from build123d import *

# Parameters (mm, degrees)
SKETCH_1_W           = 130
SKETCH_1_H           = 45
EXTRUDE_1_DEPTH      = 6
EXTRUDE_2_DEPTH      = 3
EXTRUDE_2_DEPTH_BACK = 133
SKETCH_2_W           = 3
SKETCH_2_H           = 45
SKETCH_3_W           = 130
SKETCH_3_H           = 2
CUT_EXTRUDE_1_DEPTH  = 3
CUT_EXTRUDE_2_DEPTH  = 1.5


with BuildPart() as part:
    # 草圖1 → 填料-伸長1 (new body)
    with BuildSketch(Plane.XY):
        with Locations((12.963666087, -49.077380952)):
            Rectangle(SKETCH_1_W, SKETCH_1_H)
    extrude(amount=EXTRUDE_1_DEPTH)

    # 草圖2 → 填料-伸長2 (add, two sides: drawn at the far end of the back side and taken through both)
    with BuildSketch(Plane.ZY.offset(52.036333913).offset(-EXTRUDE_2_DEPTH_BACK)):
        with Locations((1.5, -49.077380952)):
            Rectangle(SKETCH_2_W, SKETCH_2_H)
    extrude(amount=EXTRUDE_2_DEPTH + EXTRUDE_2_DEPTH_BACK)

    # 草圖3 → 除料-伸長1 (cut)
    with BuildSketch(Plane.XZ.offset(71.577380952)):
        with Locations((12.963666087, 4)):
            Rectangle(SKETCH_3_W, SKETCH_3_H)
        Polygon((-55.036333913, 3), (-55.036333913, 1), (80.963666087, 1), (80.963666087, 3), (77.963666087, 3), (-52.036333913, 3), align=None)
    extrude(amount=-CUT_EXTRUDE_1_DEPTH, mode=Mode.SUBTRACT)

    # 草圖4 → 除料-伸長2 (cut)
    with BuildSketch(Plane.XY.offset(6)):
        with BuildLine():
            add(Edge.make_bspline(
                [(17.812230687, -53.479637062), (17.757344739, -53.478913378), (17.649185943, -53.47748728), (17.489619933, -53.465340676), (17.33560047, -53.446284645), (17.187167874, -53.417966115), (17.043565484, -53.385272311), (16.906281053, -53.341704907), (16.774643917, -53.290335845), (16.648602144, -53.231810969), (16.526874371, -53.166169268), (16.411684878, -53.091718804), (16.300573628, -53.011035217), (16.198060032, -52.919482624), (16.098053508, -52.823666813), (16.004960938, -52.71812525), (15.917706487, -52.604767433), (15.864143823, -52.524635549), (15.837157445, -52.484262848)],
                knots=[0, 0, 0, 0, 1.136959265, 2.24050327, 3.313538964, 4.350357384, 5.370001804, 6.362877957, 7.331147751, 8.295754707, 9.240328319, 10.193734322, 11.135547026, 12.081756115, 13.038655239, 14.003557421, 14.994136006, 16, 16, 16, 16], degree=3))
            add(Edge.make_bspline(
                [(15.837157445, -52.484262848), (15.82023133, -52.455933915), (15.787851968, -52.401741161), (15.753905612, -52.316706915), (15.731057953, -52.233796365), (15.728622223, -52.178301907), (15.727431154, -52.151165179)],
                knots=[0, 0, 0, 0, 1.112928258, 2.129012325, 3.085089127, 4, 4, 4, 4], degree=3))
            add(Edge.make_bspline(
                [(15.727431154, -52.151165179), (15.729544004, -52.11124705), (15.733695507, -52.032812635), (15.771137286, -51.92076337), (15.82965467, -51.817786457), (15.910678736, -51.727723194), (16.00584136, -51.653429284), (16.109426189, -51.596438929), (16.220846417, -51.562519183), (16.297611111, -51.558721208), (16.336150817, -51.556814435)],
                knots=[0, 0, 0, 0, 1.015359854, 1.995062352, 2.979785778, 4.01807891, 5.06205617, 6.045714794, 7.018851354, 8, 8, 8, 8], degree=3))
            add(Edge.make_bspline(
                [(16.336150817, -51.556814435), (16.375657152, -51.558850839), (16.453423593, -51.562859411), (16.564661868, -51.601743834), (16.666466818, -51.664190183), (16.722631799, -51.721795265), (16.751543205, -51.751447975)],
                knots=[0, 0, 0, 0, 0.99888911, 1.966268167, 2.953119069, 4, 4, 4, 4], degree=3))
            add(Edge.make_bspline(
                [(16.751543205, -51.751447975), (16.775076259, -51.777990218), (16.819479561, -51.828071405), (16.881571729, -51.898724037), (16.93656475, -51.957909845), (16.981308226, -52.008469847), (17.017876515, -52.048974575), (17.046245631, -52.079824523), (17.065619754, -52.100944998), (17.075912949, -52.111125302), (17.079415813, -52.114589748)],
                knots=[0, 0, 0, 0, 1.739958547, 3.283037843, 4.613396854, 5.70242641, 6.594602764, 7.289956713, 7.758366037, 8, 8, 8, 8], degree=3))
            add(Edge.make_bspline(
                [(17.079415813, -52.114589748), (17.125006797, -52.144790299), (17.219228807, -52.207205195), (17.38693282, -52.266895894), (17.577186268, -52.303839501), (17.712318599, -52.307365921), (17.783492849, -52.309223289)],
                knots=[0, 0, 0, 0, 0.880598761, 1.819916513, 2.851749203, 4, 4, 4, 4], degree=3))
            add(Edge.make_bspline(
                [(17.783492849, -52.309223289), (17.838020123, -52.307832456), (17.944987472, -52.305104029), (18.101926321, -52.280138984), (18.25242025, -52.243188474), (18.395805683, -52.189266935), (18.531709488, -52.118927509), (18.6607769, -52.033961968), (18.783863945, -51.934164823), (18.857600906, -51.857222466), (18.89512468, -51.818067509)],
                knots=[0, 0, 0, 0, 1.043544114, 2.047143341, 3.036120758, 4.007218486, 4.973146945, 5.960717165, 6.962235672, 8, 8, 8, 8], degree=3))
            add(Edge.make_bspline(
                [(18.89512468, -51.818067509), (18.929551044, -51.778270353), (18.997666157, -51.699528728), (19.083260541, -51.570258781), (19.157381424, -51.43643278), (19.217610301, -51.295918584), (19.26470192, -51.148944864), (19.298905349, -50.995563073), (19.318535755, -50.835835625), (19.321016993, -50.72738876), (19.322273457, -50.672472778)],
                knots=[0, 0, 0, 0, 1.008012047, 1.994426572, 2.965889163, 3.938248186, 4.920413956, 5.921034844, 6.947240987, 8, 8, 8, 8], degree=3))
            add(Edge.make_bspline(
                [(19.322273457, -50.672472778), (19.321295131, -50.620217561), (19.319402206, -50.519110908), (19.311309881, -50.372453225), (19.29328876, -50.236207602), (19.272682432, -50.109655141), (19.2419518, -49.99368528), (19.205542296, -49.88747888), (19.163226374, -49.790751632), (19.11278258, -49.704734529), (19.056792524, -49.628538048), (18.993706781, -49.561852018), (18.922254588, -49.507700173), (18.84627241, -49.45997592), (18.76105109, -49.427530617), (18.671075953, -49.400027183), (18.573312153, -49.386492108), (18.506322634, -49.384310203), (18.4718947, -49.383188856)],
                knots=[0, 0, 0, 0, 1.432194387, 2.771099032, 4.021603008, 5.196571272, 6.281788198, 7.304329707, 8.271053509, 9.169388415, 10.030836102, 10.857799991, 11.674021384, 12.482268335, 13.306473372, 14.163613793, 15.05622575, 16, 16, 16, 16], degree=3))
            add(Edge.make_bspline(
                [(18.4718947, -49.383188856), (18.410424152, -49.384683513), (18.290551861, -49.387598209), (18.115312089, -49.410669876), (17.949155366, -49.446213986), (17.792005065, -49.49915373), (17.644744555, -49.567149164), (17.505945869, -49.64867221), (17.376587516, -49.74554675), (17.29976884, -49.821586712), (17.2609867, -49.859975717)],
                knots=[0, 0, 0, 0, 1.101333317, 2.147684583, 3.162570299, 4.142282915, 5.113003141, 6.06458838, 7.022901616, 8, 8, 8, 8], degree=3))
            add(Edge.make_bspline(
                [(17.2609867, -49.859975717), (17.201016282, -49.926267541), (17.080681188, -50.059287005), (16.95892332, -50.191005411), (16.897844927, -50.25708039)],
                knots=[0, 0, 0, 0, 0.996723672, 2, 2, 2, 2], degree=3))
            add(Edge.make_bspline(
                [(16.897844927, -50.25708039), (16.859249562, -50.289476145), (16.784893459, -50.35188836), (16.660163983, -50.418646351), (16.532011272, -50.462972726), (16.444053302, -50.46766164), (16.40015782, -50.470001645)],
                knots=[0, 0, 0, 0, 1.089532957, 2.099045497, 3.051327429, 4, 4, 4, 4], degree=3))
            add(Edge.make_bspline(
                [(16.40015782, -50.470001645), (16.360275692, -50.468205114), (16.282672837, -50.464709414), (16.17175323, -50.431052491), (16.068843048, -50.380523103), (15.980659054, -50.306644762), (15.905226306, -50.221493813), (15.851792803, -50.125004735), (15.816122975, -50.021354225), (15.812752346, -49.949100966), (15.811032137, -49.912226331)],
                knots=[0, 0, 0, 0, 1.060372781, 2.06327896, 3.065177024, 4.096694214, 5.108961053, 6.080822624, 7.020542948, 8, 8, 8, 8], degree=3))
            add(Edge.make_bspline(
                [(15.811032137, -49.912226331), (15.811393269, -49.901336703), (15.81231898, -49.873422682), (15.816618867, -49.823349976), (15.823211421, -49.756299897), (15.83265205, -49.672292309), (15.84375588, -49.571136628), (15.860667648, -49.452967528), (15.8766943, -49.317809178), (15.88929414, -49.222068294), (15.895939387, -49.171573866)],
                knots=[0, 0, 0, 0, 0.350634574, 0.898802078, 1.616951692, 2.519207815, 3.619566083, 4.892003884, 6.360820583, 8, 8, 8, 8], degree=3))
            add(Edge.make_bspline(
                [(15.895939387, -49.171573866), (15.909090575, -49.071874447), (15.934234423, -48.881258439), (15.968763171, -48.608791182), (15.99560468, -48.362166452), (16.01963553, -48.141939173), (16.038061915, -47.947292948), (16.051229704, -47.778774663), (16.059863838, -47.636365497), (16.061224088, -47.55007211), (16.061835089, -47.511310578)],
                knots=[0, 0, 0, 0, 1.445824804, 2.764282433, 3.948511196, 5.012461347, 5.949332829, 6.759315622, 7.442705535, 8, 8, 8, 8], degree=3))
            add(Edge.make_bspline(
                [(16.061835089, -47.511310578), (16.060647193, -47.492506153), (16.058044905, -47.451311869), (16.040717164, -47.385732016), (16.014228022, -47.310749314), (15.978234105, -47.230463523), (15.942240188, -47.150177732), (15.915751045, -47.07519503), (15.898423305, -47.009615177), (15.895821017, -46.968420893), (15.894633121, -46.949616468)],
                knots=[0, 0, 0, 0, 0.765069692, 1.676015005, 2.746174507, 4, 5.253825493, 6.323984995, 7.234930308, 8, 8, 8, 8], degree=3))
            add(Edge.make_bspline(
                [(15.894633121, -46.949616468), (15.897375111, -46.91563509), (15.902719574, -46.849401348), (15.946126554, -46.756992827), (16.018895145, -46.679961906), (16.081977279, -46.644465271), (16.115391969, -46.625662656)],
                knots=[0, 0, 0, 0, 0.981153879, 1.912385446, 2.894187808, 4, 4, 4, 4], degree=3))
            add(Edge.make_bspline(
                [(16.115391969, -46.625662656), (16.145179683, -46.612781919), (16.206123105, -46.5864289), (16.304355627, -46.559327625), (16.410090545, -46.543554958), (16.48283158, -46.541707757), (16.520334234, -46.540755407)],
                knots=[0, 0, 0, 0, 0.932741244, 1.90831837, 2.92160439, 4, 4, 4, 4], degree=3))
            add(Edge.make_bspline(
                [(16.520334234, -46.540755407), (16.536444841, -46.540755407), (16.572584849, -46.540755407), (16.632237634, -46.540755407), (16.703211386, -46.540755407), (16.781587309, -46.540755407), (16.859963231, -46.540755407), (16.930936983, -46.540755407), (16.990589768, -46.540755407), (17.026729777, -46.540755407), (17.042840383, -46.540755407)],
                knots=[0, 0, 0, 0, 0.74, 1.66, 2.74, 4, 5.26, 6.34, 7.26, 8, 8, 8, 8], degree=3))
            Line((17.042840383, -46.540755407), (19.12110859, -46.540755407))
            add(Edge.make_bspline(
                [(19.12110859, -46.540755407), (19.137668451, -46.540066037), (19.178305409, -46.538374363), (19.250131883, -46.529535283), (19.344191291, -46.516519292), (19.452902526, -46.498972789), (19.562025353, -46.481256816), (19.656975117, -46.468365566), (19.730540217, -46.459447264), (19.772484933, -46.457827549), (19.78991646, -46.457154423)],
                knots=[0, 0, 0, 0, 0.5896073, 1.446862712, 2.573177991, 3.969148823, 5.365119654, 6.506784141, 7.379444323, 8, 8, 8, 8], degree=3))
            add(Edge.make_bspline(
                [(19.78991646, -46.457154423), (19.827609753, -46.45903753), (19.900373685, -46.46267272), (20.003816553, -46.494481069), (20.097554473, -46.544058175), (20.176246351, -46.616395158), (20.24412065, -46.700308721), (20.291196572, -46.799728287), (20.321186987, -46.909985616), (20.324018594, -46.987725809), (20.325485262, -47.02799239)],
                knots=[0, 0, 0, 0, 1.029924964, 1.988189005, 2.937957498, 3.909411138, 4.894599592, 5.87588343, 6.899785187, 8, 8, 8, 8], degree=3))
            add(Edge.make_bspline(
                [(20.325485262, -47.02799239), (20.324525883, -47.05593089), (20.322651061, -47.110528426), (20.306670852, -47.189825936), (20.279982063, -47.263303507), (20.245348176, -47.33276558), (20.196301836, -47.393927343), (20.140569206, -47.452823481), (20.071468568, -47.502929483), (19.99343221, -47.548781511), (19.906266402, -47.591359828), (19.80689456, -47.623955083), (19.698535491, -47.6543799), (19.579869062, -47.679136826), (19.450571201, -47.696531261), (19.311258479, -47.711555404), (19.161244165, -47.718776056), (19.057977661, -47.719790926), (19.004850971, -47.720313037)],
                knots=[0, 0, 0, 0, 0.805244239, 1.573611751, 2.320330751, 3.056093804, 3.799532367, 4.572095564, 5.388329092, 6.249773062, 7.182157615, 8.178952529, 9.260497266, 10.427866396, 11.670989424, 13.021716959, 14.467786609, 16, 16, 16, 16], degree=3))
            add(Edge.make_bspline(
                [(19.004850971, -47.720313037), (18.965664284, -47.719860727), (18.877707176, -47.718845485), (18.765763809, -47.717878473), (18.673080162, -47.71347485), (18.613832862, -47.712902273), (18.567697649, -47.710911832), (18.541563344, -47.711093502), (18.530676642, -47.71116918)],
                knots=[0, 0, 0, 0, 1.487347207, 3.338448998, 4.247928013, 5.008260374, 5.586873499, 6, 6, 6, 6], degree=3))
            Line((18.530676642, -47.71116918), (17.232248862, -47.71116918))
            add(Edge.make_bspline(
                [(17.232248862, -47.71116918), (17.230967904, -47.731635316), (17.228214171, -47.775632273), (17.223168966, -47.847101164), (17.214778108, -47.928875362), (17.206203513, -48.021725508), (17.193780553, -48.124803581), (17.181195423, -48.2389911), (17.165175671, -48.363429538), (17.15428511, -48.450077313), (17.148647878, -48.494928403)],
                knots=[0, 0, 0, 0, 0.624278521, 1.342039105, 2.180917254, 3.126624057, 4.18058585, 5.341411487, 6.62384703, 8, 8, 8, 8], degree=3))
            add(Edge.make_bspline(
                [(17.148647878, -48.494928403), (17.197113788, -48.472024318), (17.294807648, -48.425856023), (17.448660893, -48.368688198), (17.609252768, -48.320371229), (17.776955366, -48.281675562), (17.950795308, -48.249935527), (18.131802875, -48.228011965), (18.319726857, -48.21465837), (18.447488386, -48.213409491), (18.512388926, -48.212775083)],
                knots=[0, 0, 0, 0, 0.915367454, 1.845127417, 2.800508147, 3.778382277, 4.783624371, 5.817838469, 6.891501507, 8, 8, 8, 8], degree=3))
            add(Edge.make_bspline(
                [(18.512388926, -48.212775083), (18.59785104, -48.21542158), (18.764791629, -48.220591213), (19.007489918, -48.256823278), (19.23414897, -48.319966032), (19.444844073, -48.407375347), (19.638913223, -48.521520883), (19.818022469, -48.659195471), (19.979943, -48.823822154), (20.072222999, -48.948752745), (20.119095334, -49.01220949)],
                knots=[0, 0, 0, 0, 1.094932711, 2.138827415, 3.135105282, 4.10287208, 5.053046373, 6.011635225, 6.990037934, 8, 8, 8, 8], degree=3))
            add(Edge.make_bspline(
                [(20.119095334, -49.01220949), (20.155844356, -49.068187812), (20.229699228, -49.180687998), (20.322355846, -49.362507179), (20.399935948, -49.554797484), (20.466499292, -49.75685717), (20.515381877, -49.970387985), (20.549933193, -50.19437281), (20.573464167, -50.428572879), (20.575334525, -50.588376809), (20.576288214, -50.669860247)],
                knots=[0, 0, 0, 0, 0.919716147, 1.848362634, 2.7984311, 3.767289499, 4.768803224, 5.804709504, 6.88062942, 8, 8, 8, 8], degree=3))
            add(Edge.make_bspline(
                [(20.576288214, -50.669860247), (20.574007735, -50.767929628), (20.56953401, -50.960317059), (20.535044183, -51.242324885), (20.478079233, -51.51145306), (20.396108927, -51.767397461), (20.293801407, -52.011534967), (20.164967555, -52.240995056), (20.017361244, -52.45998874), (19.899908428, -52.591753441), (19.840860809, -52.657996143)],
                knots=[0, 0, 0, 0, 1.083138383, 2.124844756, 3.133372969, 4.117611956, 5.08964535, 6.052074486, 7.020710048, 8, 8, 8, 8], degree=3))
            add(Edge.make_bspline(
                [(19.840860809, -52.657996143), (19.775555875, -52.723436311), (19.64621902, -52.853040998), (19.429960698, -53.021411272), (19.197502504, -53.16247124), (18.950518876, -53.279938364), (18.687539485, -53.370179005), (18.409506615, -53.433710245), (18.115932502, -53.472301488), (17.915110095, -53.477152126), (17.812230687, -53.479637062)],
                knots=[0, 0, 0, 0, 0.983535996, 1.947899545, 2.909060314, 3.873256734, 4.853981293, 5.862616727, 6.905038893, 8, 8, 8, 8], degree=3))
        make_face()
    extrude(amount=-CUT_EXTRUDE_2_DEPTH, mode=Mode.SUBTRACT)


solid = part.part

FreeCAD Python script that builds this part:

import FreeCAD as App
import Part
import Sketcher

V = App.Vector


def add_polygon(sketch, points):
    """Adds a closed chain of lines whose ends are joined by coincident constraints."""
    first, n = sketch.GeometryCount, len(points)
    for a, b in zip(points, points[1:] + points[:1]):
        sketch.addGeometry(Part.LineSegment(App.Vector(*a, 0), App.Vector(*b, 0)), False)
    for i in range(n):
        sketch.addConstraint(Sketcher.Constraint("Coincident", first + i, 2, first + (i + 1) % n, 1))

doc = App.newDocument("Part")
body = doc.addObject("PartDesign::Body", "Body")

sketch1 = doc.addObject("Sketcher::SketchObject", "Sketch")
body.addObject(sketch1)
sketch1.AttachmentSupport = (doc.XY_Plane, [""])
sketch1.MapMode = "FlatFace"
add_polygon(sketch1, [(-52.036334, -26.577381), (-52.036334, -71.577381), (77.963666, -71.577381), (77.963666, -26.577381)])
sketch1.addConstraint([
    Sketcher.Constraint("Vertical", 0),
    Sketcher.Constraint("Horizontal", 1),
    Sketcher.Constraint("Vertical", 2),
    Sketcher.Constraint("Horizontal", 3),
    Sketcher.Constraint("DistanceX", 1, 1, 1, 2, 130.0),
    Sketcher.Constraint("DistanceY", 0, 2, 0, 1, 45.0),
    Sketcher.Constraint("DistanceY", 0, 2, -1, 1, 71.577381),
    Sketcher.Constraint("DistanceX", 0, 2, -1, 1, 52.036334),
])
pad1 = doc.addObject("PartDesign::Pad", "Pad")
body.addObject(pad1)
pad1.Profile = sketch1
pad1.Length = 6

sketch2 = doc.addObject("Sketcher::SketchObject", "Sketch001")
body.addObject(sketch2)
sketch2.AttachmentSupport = (doc.YZ_Plane, [""])
sketch2.MapMode = "FlatFace"
sketch2.AttachmentOffset = App.Placement(V(0, 0, -52.036334), App.Rotation())
add_polygon(sketch2, [(-26.577381, 0), (-71.577381, 0), (-71.577381, 3), (-26.577381, 3)])
sketch2.addConstraint([
    Sketcher.Constraint("Horizontal", 0),
    Sketcher.Constraint("Vertical", 1),
    Sketcher.Constraint("Horizontal", 2),
    Sketcher.Constraint("Vertical", 3),
    Sketcher.Constraint("PointOnObject", 0, 2, -1),
    Sketcher.Constraint("DistanceX", 0, 2, 0, 1, 45.0),
    Sketcher.Constraint("DistanceY", 1, 1, 1, 2, 3.0),
    Sketcher.Constraint("DistanceX", 0, 2, -1, 1, 71.577381),
])
pad2 = doc.addObject("PartDesign::Pad", "Pad001")
body.addObject(pad2)
pad2.Profile = sketch2
pad2.Type = "TwoLengths"
pad2.Length = 3
pad2.Length2 = 133
pad2.Reversed = True

sketch3 = doc.addObject("Sketcher::SketchObject", "Sketch002")
body.addObject(sketch3)
sketch3.AttachmentSupport = (doc.XZ_Plane, [""])
sketch3.MapMode = "FlatFace"
sketch3.AttachmentOffset = App.Placement(V(0, 0, 71.577381), App.Rotation())
add_polygon(sketch3, [(-52.036334, 5), (-52.036334, 3), (-55.036334, 3), (-55.036334, 1), (80.963666, 1), (80.963666, 3), (77.963666, 3), (77.963666, 5)])
sketch3.addConstraint([
    Sketcher.Constraint("Vertical", 0),
    Sketcher.Constraint("Horizontal", 1),
    Sketcher.Constraint("Vertical", 2),
    Sketcher.Constraint("Horizontal", 3),
    Sketcher.Constraint("Vertical", 4),
    Sketcher.Constraint("Horizontal", 5),
    Sketcher.Constraint("Vertical", 6),
    Sketcher.Constraint("Horizontal", 7),
    Sketcher.Constraint("Horizontal", 1, 2, 4, 2),
    Sketcher.Constraint("Equal", 1, 5),
    Sketcher.Constraint("Equal", 0, 2),
    Sketcher.Constraint("DistanceX", 1, 2, 1, 1, 3.0),
    Sketcher.Constraint("DistanceX", 3, 1, 3, 2, 136.0),
    Sketcher.Constraint("DistanceY", 0, 2, 0, 1, 2.0),
    Sketcher.Constraint("DistanceY", -1, 1, 0, 2, 3.0),
    Sketcher.Constraint("DistanceX", 0, 2, -1, 1, 52.036334),
])
pocket1 = doc.addObject("PartDesign::Pocket", "Pocket")
body.addObject(pocket1)
pocket1.Profile = sketch3
pocket1.Length = 3

sketch4 = doc.addObject("Sketcher::SketchObject", "Sketch003")
body.addObject(sketch4)
sketch4.AttachmentSupport = (doc.XY_Plane, [""])
sketch4.MapMode = "FlatFace"
sketch4.AttachmentOffset = App.Placement(V(0, 0, 6), App.Rotation())
sketch4.addGeometry([
    Part.BSplineCurve([V(17.812231, -53.479637, 0), V(17.757345, -53.478913, 0), V(17.649186, -53.477487, 0), V(17.48962, -53.465341, 0), V(17.3356, -53.446285, 0), V(17.187168, -53.417966, 0), V(17.043565, -53.385272, 0), V(16.906281, -53.341705, 0), V(16.774644, -53.290336, 0), V(16.648602, -53.231811, 0), V(16.526874, -53.166169, 0), V(16.411685, -53.091719, 0), V(16.300574, -53.011035, 0), V(16.19806, -52.919483, 0), V(16.098054, -52.823667, 0), V(16.004961, -52.718125, 0), V(15.917706, -52.604767, 0), V(15.864144, -52.524636, 0), V(15.837157, -52.484263, 0)], [4, 1, 1, 1, 1, 1, 1, 1, 1, 1, 1, 1, 1, 1, 1, 1, 4], [0, 1.136959265, 2.24050327, 3.313538964, 4.350357384, 5.370001804, 6.362877957, 7.331147751, 8.295754707, 9.240328319, 10.193734322, 11.135547026, 12.081756115, 13.038655239, 14.003557421, 14.994136006, 16], False, 3, [1, 1, 1, 1, 1, 1, 1, 1, 1, 1, 1, 1, 1, 1, 1, 1, 1, 1, 1], False),
    Part.BSplineCurve([V(19.840861, -52.657996, 0), V(19.775556, -52.723436, 0), V(19.646219, -52.853041, 0), V(19.429961, -53.021411, 0), V(19.197503, -53.162471, 0), V(18.950519, -53.279938, 0), V(18.687539, -53.370179, 0), V(18.409507, -53.43371, 0), V(18.115933, -53.472301, 0), V(17.91511, -53.477152, 0), V(17.812231, -53.479637, 0)], [4, 1, 1, 1, 1, 1, 1, 1, 4], [0, 0.983535996, 1.947899545, 2.909060314, 3.873256734, 4.853981293, 5.862616727, 6.905038893, 8], False, 3, [1, 1, 1, 1, 1, 1, 1, 1, 1, 1, 1], False),
    Part.BSplineCurve([V(20.576288, -50.66986, 0), V(20.574008, -50.76793, 0), V(20.569534, -50.960317, 0), V(20.535044, -51.242325, 0), V(20.478079, -51.511453, 0), V(20.396109, -51.767397, 0), V(20.293801, -52.011535, 0), V(20.164968, -52.240995, 0), V(20.017361, -52.459989, 0), V(19.899908, -52.591753, 0), V(19.840861, -52.657996, 0)], [4, 1, 1, 1, 1, 1, 1, 1, 4], [0, 1.083138383, 2.124844756, 3.133372969, 4.117611956, 5.08964535, 6.052074486, 7.020710048, 8], False, 3, [1, 1, 1, 1, 1, 1, 1, 1, 1, 1, 1], False),
    Part.BSplineCurve([V(20.119095, -49.012209, 0), V(20.155844, -49.068188, 0), V(20.229699, -49.180688, 0), V(20.322356, -49.362507, 0), V(20.399936, -49.554797, 0), V(20.466499, -49.756857, 0), V(20.515382, -49.970388, 0), V(20.549933, -50.194373, 0), V(20.573464, -50.428573, 0), V(20.575335, -50.588377, 0), V(20.576288, -50.66986, 0)], [4, 1, 1, 1, 1, 1, 1, 1, 4], [0, 0.919716147, 1.848362634, 2.7984311, 3.767289499, 4.768803224, 5.804709504, 6.88062942, 8], False, 3, [1, 1, 1, 1, 1, 1, 1, 1, 1, 1, 1], False),
    Part.BSplineCurve([V(18.512389, -48.212775, 0), V(18.597851, -48.215422, 0), V(18.764792, -48.220591, 0), V(19.00749, -48.256823, 0), V(19.234149, -48.319966, 0), V(19.444844, -48.407375, 0), V(19.638913, -48.521521, 0), V(19.818022, -48.659195, 0), V(19.979943, -48.823822, 0), V(20.072223, -48.948753, 0), V(20.119095, -49.012209, 0)], [4, 1, 1, 1, 1, 1, 1, 1, 4], [0, 1.094932711, 2.138827415, 3.135105282, 4.10287208, 5.053046373, 6.011635225, 6.990037934, 8], False, 3, [1, 1, 1, 1, 1, 1, 1, 1, 1, 1, 1], False),
    Part.BSplineCurve([V(17.148648, -48.494928, 0), V(17.197114, -48.472024, 0), V(17.294808, -48.425856, 0), V(17.448661, -48.368688, 0), V(17.609253, -48.320371, 0), V(17.776955, -48.281676, 0), V(17.950795, -48.249936, 0), V(18.131803, -48.228012, 0), V(18.319727, -48.214658, 0), V(18.447488, -48.213409, 0), V(18.512389, -48.212775, 0)], [4, 1, 1, 1, 1, 1, 1, 1, 4], [0, 0.915367454, 1.845127417, 2.800508147, 3.778382277, 4.783624371, 5.817838469, 6.891501507, 8], False, 3, [1, 1, 1, 1, 1, 1, 1, 1, 1, 1, 1], False),
    Part.BSplineCurve([V(17.232249, -47.711169, 0), V(17.230968, -47.731635, 0), V(17.228214, -47.775632, 0), V(17.223169, -47.847101, 0), V(17.214778, -47.928875, 0), V(17.206204, -48.021726, 0), V(17.193781, -48.124804, 0), V(17.181195, -48.238991, 0), V(17.165176, -48.36343, 0), V(17.154285, -48.450077, 0), V(17.148648, -48.494928, 0)], [4, 1, 1, 1, 1, 1, 1, 1, 4], [0, 0.624278521, 1.342039105, 2.180917254, 3.126624057, 4.18058585, 5.341411487, 6.62384703, 8], False, 3, [1, 1, 1, 1, 1, 1, 1, 1, 1, 1, 1], False),
    Part.LineSegment(V(17.232249, -47.711169, 0), V(18.530677, -47.711169, 0)),
    Part.BSplineCurve([V(19.004851, -47.720313, 0), V(18.965664, -47.719861, 0), V(18.877707, -47.718845, 0), V(18.765764, -47.717878, 0), V(18.67308, -47.713475, 0), V(18.613833, -47.712902, 0), V(18.567698, -47.710912, 0), V(18.541563, -47.711094, 0), V(18.530677, -47.711169, 0)], [4, 1, 1, 1, 1, 1, 4], [0, 1.487347207, 3.338448998, 4.247928013, 5.008260374, 5.586873499, 6], False, 3, [1, 1, 1, 1, 1, 1, 1, 1, 1], False),
    Part.BSplineCurve([V(20.325485, -47.027992, 0), V(20.324526, -47.055931, 0), V(20.322651, -47.110528, 0), V(20.306671, -47.189826, 0), V(20.279982, -47.263304, 0), V(20.245348, -47.332766, 0), V(20.196302, -47.393927, 0), V(20.140569, -47.452823, 0), V(20.071469, -47.502929, 0), V(19.993432, -47.548782, 0), V(19.906266, -47.59136, 0), V(19.806895, -47.623955, 0), V(19.698535, -47.65438, 0), V(19.579869, -47.679137, 0), V(19.450571, -47.696531, 0), V(19.311258, -47.711555, 0), V(19.161244, -47.718776, 0), V(19.057978, -47.719791, 0), V(19.004851, -47.720313, 0)], [4, 1, 1, 1, 1, 1, 1, 1, 1, 1, 1, 1, 1, 1, 1, 1, 4], [0, 0.805244239, 1.573611751, 2.320330751, 3.056093804, 3.799532367, 4.572095564, 5.388329092, 6.249773062, 7.182157615, 8.178952529, 9.260497266, 10.427866396, 11.670989424, 13.021716959, 14.467786609, 16], False, 3, [1, 1, 1, 1, 1, 1, 1, 1, 1, 1, 1, 1, 1, 1, 1, 1, 1, 1, 1], False),
    Part.BSplineCurve([V(19.789916, -46.457154, 0), V(19.82761, -46.459038, 0), V(19.900374, -46.462673, 0), V(20.003817, -46.494481, 0), V(20.097554, -46.544058, 0), V(20.176246, -46.616395, 0), V(20.244121, -46.700309, 0), V(20.291197, -46.799728, 0), V(20.321187, -46.909986, 0), V(20.324019, -46.987726, 0), V(20.325485, -47.027992, 0)], [4, 1, 1, 1, 1, 1, 1, 1, 4], [0, 1.029924964, 1.988189005, 2.937957498, 3.909411138, 4.894599592, 5.87588343, 6.899785187, 8], False, 3, [1, 1, 1, 1, 1, 1, 1, 1, 1, 1, 1], False),
    Part.BSplineCurve([V(19.121109, -46.540755, 0), V(19.137668, -46.540066, 0), V(19.178305, -46.538374, 0), V(19.250132, -46.529535, 0), V(19.344191, -46.516519, 0), V(19.452903, -46.498973, 0), V(19.562025, -46.481257, 0), V(19.656975, -46.468366, 0), V(19.73054, -46.459447, 0), V(19.772485, -46.457828, 0), V(19.789916, -46.457154, 0)], [4, 1, 1, 1, 1, 1, 1, 1, 4], [0, 0.5896073, 1.446862712, 2.573177991, 3.969148823, 5.365119654, 6.506784141, 7.379444323, 8], False, 3, [1, 1, 1, 1, 1, 1, 1, 1, 1, 1, 1], False),
    Part.LineSegment(V(19.121109, -46.540755, 0), V(17.04284, -46.540755, 0)),
    Part.BSplineCurve([V(16.520334, -46.540755, 0), V(16.536445, -46.540755, 0), V(16.572585, -46.540755, 0), V(16.632238, -46.540755, 0), V(16.703211, -46.540755, 0), V(16.781587, -46.540755, 0), V(16.859963, -46.540755, 0), V(16.930937, -46.540755, 0), V(16.99059, -46.540755, 0), V(17.02673, -46.540755, 0), V(17.04284, -46.540755, 0)], [4, 1, 1, 1, 1, 1, 1, 1, 4], [0, 0.74, 1.66, 2.74, 4, 5.26, 6.34, 7.26, 8], False, 3, [1, 1, 1, 1, 1, 1, 1, 1, 1, 1, 1], False),
    Part.BSplineCurve([V(16.115392, -46.625663, 0), V(16.14518, -46.612782, 0), V(16.206123, -46.586429, 0), V(16.304356, -46.559328, 0), V(16.410091, -46.543555, 0), V(16.482832, -46.541708, 0), V(16.520334, -46.540755, 0)], [4, 1, 1, 1, 4], [0, 0.932741244, 1.90831837, 2.92160439, 4], False, 3, [1, 1, 1, 1, 1, 1, 1], False),
    Part.BSplineCurve([V(15.894633, -46.949616, 0), V(15.897375, -46.915635, 0), V(15.90272, -46.849401, 0), V(15.946127, -46.756993, 0), V(16.018895, -46.679962, 0), V(16.081977, -46.644465, 0), V(16.115392, -46.625663, 0)], [4, 1, 1, 1, 4], [0, 0.981153879, 1.912385446, 2.894187808, 4], False, 3, [1, 1, 1, 1, 1, 1, 1], False),
    Part.BSplineCurve([V(16.061835, -47.511311, 0), V(16.060647, -47.492506, 0), V(16.058045, -47.451312, 0), V(16.040717, -47.385732, 0), V(16.014228, -47.310749, 0), V(15.978234, -47.230464, 0), V(15.94224, -47.150178, 0), V(15.915751, -47.075195, 0), V(15.898423, -47.009615, 0), V(15.895821, -46.968421, 0), V(15.894633, -46.949616, 0)], [4, 1, 1, 1, 1, 1, 1, 1, 4], [0, 0.765069692, 1.676015005, 2.746174507, 4, 5.253825493, 6.323984995, 7.234930308, 8], False, 3, [1, 1, 1, 1, 1, 1, 1, 1, 1, 1, 1], False),
    Part.BSplineCurve([V(15.895939, -49.171574, 0), V(15.909091, -49.071874, 0), V(15.934234, -48.881258, 0), V(15.968763, -48.608791, 0), V(15.995605, -48.362166, 0), V(16.019636, -48.141939, 0), V(16.038062, -47.947293, 0), V(16.05123, -47.778775, 0), V(16.059864, -47.636365, 0), V(16.061224, -47.550072, 0), V(16.061835, -47.511311, 0)], [4, 1, 1, 1, 1, 1, 1, 1, 4], [0, 1.445824804, 2.764282433, 3.948511196, 5.012461347, 5.949332829, 6.759315622, 7.442705535, 8], False, 3, [1, 1, 1, 1, 1, 1, 1, 1, 1, 1, 1], False),
    Part.BSplineCurve([V(15.811032, -49.912226, 0), V(15.811393, -49.901337, 0), V(15.812319, -49.873423, 0), V(15.816619, -49.82335, 0), V(15.823211, -49.7563, 0), V(15.832652, -49.672292, 0), V(15.843756, -49.571137, 0), V(15.860668, -49.452968, 0), V(15.876694, -49.317809, 0), V(15.889294, -49.222068, 0), V(15.895939, -49.171574, 0)], [4, 1, 1, 1, 1, 1, 1, 1, 4], [0, 0.350634574, 0.898802078, 1.616951692, 2.519207815, 3.619566083, 4.892003884, 6.360820583, 8], False, 3, [1, 1, 1, 1, 1, 1, 1, 1, 1, 1, 1], False),
    Part.BSplineCurve([V(16.400158, -50.470002, 0), V(16.360276, -50.468205, 0), V(16.282673, -50.464709, 0), V(16.171753, -50.431052, 0), V(16.068843, -50.380523, 0), V(15.980659, -50.306645, 0), V(15.905226, -50.221494, 0), V(15.851793, -50.125005, 0), V(15.816123, -50.021354, 0), V(15.812752, -49.949101, 0), V(15.811032, -49.912226, 0)], [4, 1, 1, 1, 1, 1, 1, 1, 4], [0, 1.060372781, 2.06327896, 3.065177024, 4.096694214, 5.108961053, 6.080822624, 7.020542948, 8], False, 3, [1, 1, 1, 1, 1, 1, 1, 1, 1, 1, 1], False),
    Part.BSplineCurve([V(16.897845, -50.25708, 0), V(16.85925, -50.289476, 0), V(16.784893, -50.351888, 0), V(16.660164, -50.418646, 0), V(16.532011, -50.462973, 0), V(16.444053, -50.467662, 0), V(16.400158, -50.470002, 0)], [4, 1, 1, 1, 4], [0, 1.089532957, 2.099045497, 3.051327429, 4], False, 3, [1, 1, 1, 1, 1, 1, 1], False),
    Part.BSplineCurve([V(17.260987, -49.859976, 0), V(17.201016, -49.926268, 0), V(17.080681, -50.059287, 0), V(16.958923, -50.191005, 0), V(16.897845, -50.25708, 0)], [4, 1, 4], [0, 0.996723672, 2], False, 3, [1, 1, 1, 1, 1], False),
    Part.BSplineCurve([V(18.471895, -49.383189, 0), V(18.410424, -49.384684, 0), V(18.290552, -49.387598, 0), V(18.115312, -49.41067, 0), V(17.949155, -49.446214, 0), V(17.792005, -49.499154, 0), V(17.644745, -49.567149, 0), V(17.505946, -49.648672, 0), V(17.376588, -49.745547, 0), V(17.299769, -49.821587, 0), V(17.260987, -49.859976, 0)], [4, 1, 1, 1, 1, 1, 1, 1, 4], [0, 1.101333317, 2.147684583, 3.162570299, 4.142282915, 5.113003141, 6.06458838, 7.022901616, 8], False, 3, [1, 1, 1, 1, 1, 1, 1, 1, 1, 1, 1], False),
    Part.BSplineCurve([V(19.322273, -50.672473, 0), V(19.321295, -50.620218, 0), V(19.319402, -50.519111, 0), V(19.31131, -50.372453, 0), V(19.293289, -50.236208, 0), V(19.272682, -50.109655, 0), V(19.241952, -49.993685, 0), V(19.205542, -49.887479, 0), V(19.163226, -49.790752, 0), V(19.112783, -49.704735, 0), V(19.056793, -49.628538, 0), V(18.993707, -49.561852, 0), V(18.922255, -49.5077, 0), V(18.846272, -49.459976, 0), V(18.761051, -49.427531, 0), V(18.671076, -49.400027, 0), V(18.573312, -49.386492, 0), V(18.506323, -49.38431, 0), V(18.471895, -49.383189, 0)], [4, 1, 1, 1, 1, 1, 1, 1, 1, 1, 1, 1, 1, 1, 1, 1, 4], [0, 1.432194387, 2.771099032, 4.021603008, 5.196571272, 6.281788198, 7.304329707, 8.271053509, 9.169388415, 10.030836102, 10.857799991, 11.674021384, 12.482268335, 13.306473372, 14.163613793, 15.05622575, 16], False, 3, [1, 1, 1, 1, 1, 1, 1, 1, 1, 1, 1, 1, 1, 1, 1, 1, 1, 1, 1], False),
    Part.BSplineCurve([V(18.895125, -51.818068, 0), V(18.929551, -51.77827, 0), V(18.997666, -51.699529, 0), V(19.083261, -51.570259, 0), V(19.157381, -51.436433, 0), V(19.21761, -51.295919, 0), V(19.264702, -51.148945, 0), V(19.298905, -50.995563, 0), V(19.318536, -50.835836, 0), V(19.321017, -50.727389, 0), V(19.322273, -50.672473, 0)], [4, 1, 1, 1, 1, 1, 1, 1, 4], [0, 1.008012047, 1.994426572, 2.965889163, 3.938248186, 4.920413956, 5.921034844, 6.947240987, 8], False, 3, [1, 1, 1, 1, 1, 1, 1, 1, 1, 1, 1], False),
    Part.BSplineCurve([V(17.783493, -52.309223, 0), V(17.83802, -52.307832, 0), V(17.944987, -52.305104, 0), V(18.101926, -52.280139, 0), V(18.25242, -52.243188, 0), V(18.395806, -52.189267, 0), V(18.531709, -52.118928, 0), V(18.660777, -52.033962, 0), V(18.783864, -51.934165, 0), V(18.857601, -51.857222, 0), V(18.895125, -51.818068, 0)], [4, 1, 1, 1, 1, 1, 1, 1, 4], [0, 1.043544114, 2.047143341, 3.036120758, 4.007218486, 4.973146945, 5.960717165, 6.962235672, 8], False, 3, [1, 1, 1, 1, 1, 1, 1, 1, 1, 1, 1], False),
    Part.BSplineCurve([V(17.079416, -52.11459, 0), V(17.125007, -52.14479, 0), V(17.219229, -52.207205, 0), V(17.386933, -52.266896, 0), V(17.577186, -52.30384, 0), V(17.712319, -52.307366, 0), V(17.783493, -52.309223, 0)], [4, 1, 1, 1, 4], [0, 0.880598761, 1.819916513, 2.851749203, 4], False, 3, [1, 1, 1, 1, 1, 1, 1], False),
    Part.BSplineCurve([V(16.751543, -51.751448, 0), V(16.775076, -51.77799, 0), V(16.81948, -51.828071, 0), V(16.881572, -51.898724, 0), V(16.936565, -51.95791, 0), V(16.981308, -52.00847, 0), V(17.017877, -52.048975, 0), V(17.046246, -52.079825, 0), V(17.06562, -52.100945, 0), V(17.075913, -52.111125, 0), V(17.079416, -52.11459, 0)], [4, 1, 1, 1, 1, 1, 1, 1, 4], [0, 1.739958547, 3.283037843, 4.613396854, 5.70242641, 6.594602764, 7.289956713, 7.758366037, 8], False, 3, [1, 1, 1, 1, 1, 1, 1, 1, 1, 1, 1], False),
    Part.BSplineCurve([V(16.336151, -51.556814, 0), V(16.375657, -51.558851, 0), V(16.453424, -51.562859, 0), V(16.564662, -51.601744, 0), V(16.666467, -51.66419, 0), V(16.722632, -51.721795, 0), V(16.751543, -51.751448, 0)], [4, 1, 1, 1, 4], [0, 0.99888911, 1.966268167, 2.953119069, 4], False, 3, [1, 1, 1, 1, 1, 1, 1], False),
    Part.BSplineCurve([V(15.727431, -52.151165, 0), V(15.729544, -52.111247, 0), V(15.733696, -52.032813, 0), V(15.771137, -51.920763, 0), V(15.829655, -51.817786, 0), V(15.910679, -51.727723, 0), V(16.005841, -51.653429, 0), V(16.109426, -51.596439, 0), V(16.220846, -51.562519, 0), V(16.297611, -51.558721, 0), V(16.336151, -51.556814, 0)], [4, 1, 1, 1, 1, 1, 1, 1, 4], [0, 1.015359854, 1.995062352, 2.979785778, 4.01807891, 5.06205617, 6.045714794, 7.018851354, 8], False, 3, [1, 1, 1, 1, 1, 1, 1, 1, 1, 1, 1], False),
    Part.BSplineCurve([V(15.837157, -52.484263, 0), V(15.820231, -52.455934, 0), V(15.787852, -52.401741, 0), V(15.753906, -52.316707, 0), V(15.731058, -52.233796, 0), V(15.728622, -52.178302, 0), V(15.727431, -52.151165, 0)], [4, 1, 1, 1, 4], [0, 1.112928258, 2.129012325, 3.085089127, 4], False, 3, [1, 1, 1, 1, 1, 1, 1], False),
], False)
sketch4.addConstraint([
    Sketcher.Constraint("Block", 0),
    Sketcher.Constraint("Block", 1),
    Sketcher.Constraint("Block", 2),
    Sketcher.Constraint("Block", 3),
    Sketcher.Constraint("Block", 4),
    Sketcher.Constraint("Block", 5),
    Sketcher.Constraint("Block", 6),
    Sketcher.Constraint("Block", 8),
    Sketcher.Constraint("Block", 9),
    Sketcher.Constraint("Block", 10),
    Sketcher.Constraint("Block", 11),
    Sketcher.Constraint("Block", 13),
    Sketcher.Constraint("Block", 14),
    Sketcher.Constraint("Block", 15),
    Sketcher.Constraint("Block", 16),
    Sketcher.Constraint("Block", 17),
    Sketcher.Constraint("Block", 18),
    Sketcher.Constraint("Block", 19),
    Sketcher.Constraint("Block", 20),
    Sketcher.Constraint("Block", 21),
    Sketcher.Constraint("Block", 22),
    Sketcher.Constraint("Block", 23),
    Sketcher.Constraint("Block", 24),
    Sketcher.Constraint("Block", 25),
    Sketcher.Constraint("Block", 26),
    Sketcher.Constraint("Block", 27),
    Sketcher.Constraint("Block", 28),
    Sketcher.Constraint("Block", 29),
    Sketcher.Constraint("Block", 30),
    Sketcher.Constraint("Coincident", 6, 1, 7, 1),
    Sketcher.Constraint("Coincident", 7, 2, 8, 2),
    Sketcher.Constraint("Coincident", 11, 1, 12, 1),
    Sketcher.Constraint("Coincident", 12, 2, 13, 2),
])
pocket2 = doc.addObject("PartDesign::Pocket", "Pocket001")
body.addObject(pocket2)
pocket2.Profile = sketch4
pocket2.Length = 1.5

doc.recompute()
